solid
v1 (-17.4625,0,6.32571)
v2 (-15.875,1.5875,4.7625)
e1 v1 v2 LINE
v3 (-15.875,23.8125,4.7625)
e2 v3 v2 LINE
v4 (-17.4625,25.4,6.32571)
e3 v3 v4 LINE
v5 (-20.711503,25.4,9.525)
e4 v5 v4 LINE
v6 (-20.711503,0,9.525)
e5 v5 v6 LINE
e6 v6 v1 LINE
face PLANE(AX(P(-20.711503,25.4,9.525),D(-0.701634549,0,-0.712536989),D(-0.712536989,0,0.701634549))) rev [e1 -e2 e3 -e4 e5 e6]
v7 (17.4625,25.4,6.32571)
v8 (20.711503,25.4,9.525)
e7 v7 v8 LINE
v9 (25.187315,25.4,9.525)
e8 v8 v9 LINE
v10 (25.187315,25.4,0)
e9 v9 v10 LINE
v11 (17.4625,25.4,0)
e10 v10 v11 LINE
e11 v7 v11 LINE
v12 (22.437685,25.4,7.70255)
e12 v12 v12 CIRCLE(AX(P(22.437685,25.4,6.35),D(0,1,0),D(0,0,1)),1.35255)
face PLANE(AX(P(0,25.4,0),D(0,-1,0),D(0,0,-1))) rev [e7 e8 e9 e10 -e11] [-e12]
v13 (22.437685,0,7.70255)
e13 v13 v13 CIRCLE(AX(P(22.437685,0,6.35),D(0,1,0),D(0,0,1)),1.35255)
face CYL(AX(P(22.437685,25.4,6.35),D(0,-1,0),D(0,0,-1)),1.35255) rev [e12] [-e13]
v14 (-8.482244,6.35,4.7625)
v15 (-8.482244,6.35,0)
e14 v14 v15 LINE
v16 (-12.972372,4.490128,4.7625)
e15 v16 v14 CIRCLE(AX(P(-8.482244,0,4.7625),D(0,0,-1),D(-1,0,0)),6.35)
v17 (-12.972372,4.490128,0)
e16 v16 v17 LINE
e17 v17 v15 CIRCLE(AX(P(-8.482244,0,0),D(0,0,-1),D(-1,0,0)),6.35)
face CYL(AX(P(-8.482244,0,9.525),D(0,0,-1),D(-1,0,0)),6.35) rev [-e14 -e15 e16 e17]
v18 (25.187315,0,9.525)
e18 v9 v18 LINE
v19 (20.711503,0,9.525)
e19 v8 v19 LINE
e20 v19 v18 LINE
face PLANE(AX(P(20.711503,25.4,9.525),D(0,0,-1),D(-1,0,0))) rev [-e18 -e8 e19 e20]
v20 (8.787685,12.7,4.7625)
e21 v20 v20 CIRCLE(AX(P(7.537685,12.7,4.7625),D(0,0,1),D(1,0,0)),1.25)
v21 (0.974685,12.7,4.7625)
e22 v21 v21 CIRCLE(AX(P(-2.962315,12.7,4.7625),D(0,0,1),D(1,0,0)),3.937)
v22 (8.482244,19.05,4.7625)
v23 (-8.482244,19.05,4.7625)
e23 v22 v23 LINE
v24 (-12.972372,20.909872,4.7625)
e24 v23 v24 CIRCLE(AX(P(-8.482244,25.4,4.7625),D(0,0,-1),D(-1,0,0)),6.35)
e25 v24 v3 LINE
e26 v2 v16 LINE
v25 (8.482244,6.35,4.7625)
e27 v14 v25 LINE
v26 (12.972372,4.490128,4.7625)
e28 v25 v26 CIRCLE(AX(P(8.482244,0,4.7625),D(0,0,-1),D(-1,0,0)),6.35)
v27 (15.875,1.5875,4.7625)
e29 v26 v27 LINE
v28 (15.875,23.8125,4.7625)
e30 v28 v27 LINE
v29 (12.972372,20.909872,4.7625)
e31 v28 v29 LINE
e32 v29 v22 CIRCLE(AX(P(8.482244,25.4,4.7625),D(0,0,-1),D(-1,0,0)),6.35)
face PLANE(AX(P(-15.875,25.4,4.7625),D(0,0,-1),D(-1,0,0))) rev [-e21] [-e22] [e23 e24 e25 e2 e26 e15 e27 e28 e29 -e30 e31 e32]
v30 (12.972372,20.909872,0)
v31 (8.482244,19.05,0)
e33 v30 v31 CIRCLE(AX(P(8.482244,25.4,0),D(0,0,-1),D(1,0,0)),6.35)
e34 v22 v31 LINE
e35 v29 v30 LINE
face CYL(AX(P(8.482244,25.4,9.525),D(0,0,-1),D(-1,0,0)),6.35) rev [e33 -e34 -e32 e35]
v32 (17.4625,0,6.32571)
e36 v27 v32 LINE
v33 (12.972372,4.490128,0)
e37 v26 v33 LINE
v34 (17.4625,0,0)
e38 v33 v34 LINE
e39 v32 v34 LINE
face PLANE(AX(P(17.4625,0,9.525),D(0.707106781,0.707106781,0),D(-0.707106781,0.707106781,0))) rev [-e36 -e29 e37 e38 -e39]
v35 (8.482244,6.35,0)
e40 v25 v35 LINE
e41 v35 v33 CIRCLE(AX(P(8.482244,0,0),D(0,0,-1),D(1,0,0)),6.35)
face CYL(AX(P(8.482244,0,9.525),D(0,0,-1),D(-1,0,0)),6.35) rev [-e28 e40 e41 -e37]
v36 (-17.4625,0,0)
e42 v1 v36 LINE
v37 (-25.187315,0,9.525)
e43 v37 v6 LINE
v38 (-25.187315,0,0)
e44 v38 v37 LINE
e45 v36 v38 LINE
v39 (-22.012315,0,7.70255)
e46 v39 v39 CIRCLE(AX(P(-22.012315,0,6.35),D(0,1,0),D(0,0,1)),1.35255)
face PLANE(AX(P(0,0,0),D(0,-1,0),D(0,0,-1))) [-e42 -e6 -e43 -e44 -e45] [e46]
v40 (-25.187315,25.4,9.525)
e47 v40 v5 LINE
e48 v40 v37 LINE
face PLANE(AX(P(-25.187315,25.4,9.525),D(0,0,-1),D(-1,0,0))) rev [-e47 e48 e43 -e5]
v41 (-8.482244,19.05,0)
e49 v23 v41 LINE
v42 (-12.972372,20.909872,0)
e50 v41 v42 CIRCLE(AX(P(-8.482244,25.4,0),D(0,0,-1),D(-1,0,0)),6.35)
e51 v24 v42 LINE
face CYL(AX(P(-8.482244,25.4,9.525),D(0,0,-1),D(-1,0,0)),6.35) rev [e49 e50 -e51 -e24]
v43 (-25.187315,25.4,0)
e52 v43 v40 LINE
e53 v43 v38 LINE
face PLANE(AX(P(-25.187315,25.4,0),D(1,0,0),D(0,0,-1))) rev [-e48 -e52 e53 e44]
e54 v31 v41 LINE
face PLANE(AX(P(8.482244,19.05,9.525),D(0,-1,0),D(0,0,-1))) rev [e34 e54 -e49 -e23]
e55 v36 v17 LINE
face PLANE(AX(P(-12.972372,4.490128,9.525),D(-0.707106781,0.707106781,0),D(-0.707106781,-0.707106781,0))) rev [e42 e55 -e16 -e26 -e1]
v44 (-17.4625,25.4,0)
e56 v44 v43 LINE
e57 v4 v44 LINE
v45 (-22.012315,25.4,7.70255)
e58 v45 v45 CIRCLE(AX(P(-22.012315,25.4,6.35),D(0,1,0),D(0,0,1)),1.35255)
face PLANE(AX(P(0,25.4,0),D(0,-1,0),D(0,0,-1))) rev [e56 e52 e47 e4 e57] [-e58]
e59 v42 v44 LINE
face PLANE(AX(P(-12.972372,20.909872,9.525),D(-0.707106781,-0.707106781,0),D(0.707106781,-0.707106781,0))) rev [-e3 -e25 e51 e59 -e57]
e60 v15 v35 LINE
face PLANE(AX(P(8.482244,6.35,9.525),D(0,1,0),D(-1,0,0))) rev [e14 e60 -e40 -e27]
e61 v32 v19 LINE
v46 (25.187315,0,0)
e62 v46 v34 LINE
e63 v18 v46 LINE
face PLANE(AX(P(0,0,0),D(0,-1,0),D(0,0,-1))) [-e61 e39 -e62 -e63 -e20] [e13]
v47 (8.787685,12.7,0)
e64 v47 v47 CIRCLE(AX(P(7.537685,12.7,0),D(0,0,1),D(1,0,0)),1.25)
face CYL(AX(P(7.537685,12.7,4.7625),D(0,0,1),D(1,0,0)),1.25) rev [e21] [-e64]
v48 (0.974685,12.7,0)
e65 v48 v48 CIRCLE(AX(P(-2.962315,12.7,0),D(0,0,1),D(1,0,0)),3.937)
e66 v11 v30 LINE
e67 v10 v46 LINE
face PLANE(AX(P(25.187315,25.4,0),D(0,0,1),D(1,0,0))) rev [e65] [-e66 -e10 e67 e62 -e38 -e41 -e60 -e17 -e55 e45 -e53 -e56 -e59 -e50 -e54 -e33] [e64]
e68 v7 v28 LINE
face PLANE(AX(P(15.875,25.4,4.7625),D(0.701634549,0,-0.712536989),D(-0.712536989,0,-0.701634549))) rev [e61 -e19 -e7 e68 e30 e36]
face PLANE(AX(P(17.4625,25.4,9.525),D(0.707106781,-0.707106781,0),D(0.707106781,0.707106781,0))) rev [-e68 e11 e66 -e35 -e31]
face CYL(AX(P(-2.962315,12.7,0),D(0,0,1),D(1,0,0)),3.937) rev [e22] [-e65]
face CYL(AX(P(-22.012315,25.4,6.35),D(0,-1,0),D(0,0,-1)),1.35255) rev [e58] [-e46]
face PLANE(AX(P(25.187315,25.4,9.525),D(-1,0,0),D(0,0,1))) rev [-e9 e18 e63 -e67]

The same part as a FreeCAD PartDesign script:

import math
import FreeCAD as App
import Part
import Sketcher
Q = App.Units.Quantity


def add_polygon(sketch, points):
    """Adds a closed chain of lines whose ends are joined by coincident constraints."""
    first, n = sketch.GeometryCount, len(points)
    for a, b in zip(points, points[1:] + points[:1]):
        sketch.addGeometry(Part.LineSegment(App.Vector(*a, 0), App.Vector(*b, 0)), False)
    for i in range(n):
        sketch.addConstraint(Sketcher.Constraint("Coincident", first + i, 2, first + (i + 1) % n, 1))

doc = App.newDocument("Part")
body = doc.addObject("PartDesign::Body", "Body")

sketch1 = body.newObject("Sketcher::SketchObject", "Sketch")
sketch1.AttachmentSupport = (doc.getObject("XZ_Plane"), [""])
sketch1.MapMode = "FlatFace"
add_polygon(sketch1, [(25.2, 0), (-25.2, 0), (-25.2, 9.5), (-20.7, 9.5), (-15.9, 4.8), (15.9, 4.8), (20.7, 9.5), (25.2, 9.5)])
sketch1.addGeometry(Part.Circle(App.Vector(-22, 6.3, 0), App.Vector(0, 0, 1), 1.4), False)
sketch1.addGeometry(Part.Circle(App.Vector(22.4, 6.3, 0), App.Vector(0, 0, 1), 1.4), False)
sketch1.addConstraint([
    Sketcher.Constraint("Horizontal", 0),
    Sketcher.Constraint("Vertical", 1),
    Sketcher.Constraint("Horizontal", 2),
    Sketcher.Constraint("Horizontal", 4),
    Sketcher.Constraint("Horizontal", 6),
    Sketcher.Constraint("Vertical", 7),
    Sketcher.Constraint("Equal", 8, 9),
    Sketcher.Constraint("Symmetric", 0, 2, 7, 2, -1, 1),
    Sketcher.Constraint("Symmetric", 2, 2, 5, 2, -2),
    Sketcher.Constraint("Horizontal", 8, 3, 9, 3),
    Sketcher.Constraint("Equal", 3, 5),
    Sketcher.Constraint("Diameter", 8, Q("0.1065 in")),
    Sketcher.Constraint("DistanceX", 4, 1, 4, 2, Q("1.25 in")),
    Sketcher.Constraint("DistanceY", 1, 1, 1, 2, Q("0.375 in")),
    Sketcher.Constraint("DistanceY", -1, 1, 8, 3, Q("0.25 in")),
    Sketcher.Constraint("DistanceX", 8, 3, 9, 3, Q("1.75 in")),
    Sketcher.Constraint("DistanceY", -1, 1, 3, 2, Q("0.1875 in")),
    Sketcher.Constraint("DistanceX", 0, 2, 8, 3, Q("0.125 in")),
    Sketcher.Constraint("DistanceX", 0, 2, 0, 1, 50.374631),
    Sketcher.Constraint("Distance", 3, 6.787722),
])
pad1 = body.newObject("PartDesign::Pad", "Pad")
pad1.Profile = sketch1
pad1.Length = Q("1 in")
pad1.Reversed = True

sketch2 = body.newObject("Sketcher::SketchObject", "Sketch001")
sketch2.AttachmentSupport = (doc.getObject("XY_Plane"), [""])
sketch2.MapMode = "FlatFace"
sketch2.AttachmentOffset = App.Placement(App.Vector(0, 0, 0.1875 * 25.4), App.Rotation())
sketch2.addGeometry(Part.Circle(App.Vector(-3, 12.7, 0), App.Vector(0, 0, 1), 3.9), False)
sketch2.addConstraint([
    Sketcher.Constraint("Diameter", 0, Q("0.31 in")),
    Sketcher.Constraint("DistanceY", -1, 1, 0, 3, Q("0.5 in")),
    Sketcher.Constraint("DistanceX", 0, 3, -1, 1, 2.962315),
])
pocket1 = body.newObject("PartDesign::Pocket", "Pocket")
pocket1.Profile = sketch2
pocket1.Type = "ThroughAll"

sketch3 = body.newObject("Sketcher::SketchObject", "Sketch002")
sketch3.AttachmentSupport = (doc.getObject("XY_Plane"), [""])
sketch3.MapMode = "FlatFace"
sketch3.AttachmentOffset = App.Placement(App.Vector(0, 0, 0.1875 * 25.4), App.Rotation())
sketch3.addGeometry(Part.Circle(App.Vector(7.5, 12.7, 0), App.Vector(0, 0, 1), 1.2), False)
sketch3.addConstraint([
    Sketcher.Constraint("DistanceY", -1, 1, 0, 3, Q("0.5 in")),
    Sketcher.Constraint("Diameter", 0, 2.5),
    Sketcher.Constraint("DistanceX", -1, 1, 0, 3, 7.537685),
])
doc.recompute()
hole = body.newObject("PartDesign::Hole", "Hole")
hole.Profile = sketch3
hole.ThreadType = "None"
hole.Diameter = 2.5
hole.DepthType = "Dimension"
hole.Depth = Q("0.1875 in")
hole.DrillPoint = "Flat"

sketch4 = body.newObject("Sketcher::SketchObject", "Sketch003")
sketch4.AttachmentSupport = (doc.getObject("XY_Plane"), [""])
sketch4.MapMode = "FlatFace"
sketch4.addGeometry([
    Part.LineSegment(App.Vector(17.5, 25.4, 0), App.Vector(13, 20.9, 0)),
    Part.ArcOfCircle(Part.Circle(App.Vector(8.5, 25.4, 0), App.Vector(0, 0, 1), 6.4), math.radians(-90), math.radians(-45)),
    Part.LineSegment(App.Vector(8.5, 19.1, 0), App.Vector(-8.5, 19.1, 0)),
    Part.ArcOfCircle(Part.Circle(App.Vector(-8.5, 25.4, 0), App.Vector(0, 0, 1), 6.4), math.radians(-135), math.radians(-90)),
    Part.LineSegment(App.Vector(-13, 20.9, 0), App.Vector(-17.5, 25.4, 0)),
    Part.LineSegment(App.Vector(-17.5, 25.4, 0), App.Vector(17.5, 25.4, 0)),
    Part.LineSegment(App.Vector(13, 4.5, 0), App.Vector(17.5, 0, 0)),
    Part.LineSegment(App.Vector(17.5, 0, 0), App.Vector(-17.5, 0, 0)),
    Part.LineSegment(App.Vector(-17.5, 0, 0), App.Vector(-13, 4.5, 0)),
    Part.ArcOfCircle(Part.Circle(App.Vector(-8.5, 0, 0), App.Vector(0, 0, 1), 6.4), math.radians(90), math.radians(135)),
    Part.LineSegment(App.Vector(-8.5, 6.3, 0), App.Vector(8.5, 6.3, 0)),
    Part.ArcOfCircle(Part.Circle(App.Vector(8.5, 0, 0), App.Vector(0, 0, 1), 6.4), math.radians(45), math.radians(90)),
], False)
sketch4.addConstraint([
    Sketcher.Constraint("Tangent", 0, 2, 1, 2),
    Sketcher.Constraint("Tangent", 1, 1, 2, 1),
    Sketcher.Constraint("Tangent", 2, 2, 3, 2),
    Sketcher.Constraint("Tangent", 3, 1, 4, 1),
    Sketcher.Constraint("Coincident", 4, 2, 5, 1),
    Sketcher.Constraint("Coincident", 5, 2, 0, 1),
    Sketcher.Constraint("Coincident", 6, 2, 7, 1),
    Sketcher.Constraint("Coincident", 7, 2, 8, 1),
    Sketcher.Constraint("Tangent", 8, 2, 9, 2),
    Sketcher.Constraint("Tangent", 9, 1, 10, 1),
    Sketcher.Constraint("Tangent", 10, 2, 11, 2),
    Sketcher.Constraint("Tangent", 11, 1, 6, 1),
    Sketcher.Constraint("Horizontal", 2),
    Sketcher.Constraint("Horizontal", 5),
    Sketcher.Constraint("Horizontal", 7),
    Sketcher.Constraint("Horizontal", 10),
    Sketcher.Constraint("Equal", 1, 3),
    Sketcher.Constraint("Equal", 3, 9),
    Sketcher.Constraint("Equal", 9, 11),
    Sketcher.Constraint("Symmetric", 9, 3, 11, 3, -1, 1),
    Sketcher.Constraint("Symmetric", 6, 2, 7, 2, -1, 1),
    Sketcher.Constraint("Symmetric", 0, 2, 3, 1, -2),
    Sketcher.Constraint("Perpendicular", 0, 4),
    Sketcher.Constraint("Parallel", 4, 6),
    Sketcher.Constraint("Horizontal", 3, 3, 4, 2),
    Sketcher.Constraint("Vertical", 3, 3, 9, 3),
    Sketcher.Constraint("Radius", 1, Q("0.25 in")),
    Sketcher.Constraint("DistanceY", -1, 1, 1, 3, Q("1 in")),
    Sketcher.Constraint("DistanceX", 5, 1, 5, 2, Q("1.375 in")),
])
pocket2 = body.newObject("PartDesign::Pocket", "Pocket001")
pocket2.Profile = sketch4
pocket2.Type = "ThroughAll"
pocket2.Reversed = True

doc.recompute()
